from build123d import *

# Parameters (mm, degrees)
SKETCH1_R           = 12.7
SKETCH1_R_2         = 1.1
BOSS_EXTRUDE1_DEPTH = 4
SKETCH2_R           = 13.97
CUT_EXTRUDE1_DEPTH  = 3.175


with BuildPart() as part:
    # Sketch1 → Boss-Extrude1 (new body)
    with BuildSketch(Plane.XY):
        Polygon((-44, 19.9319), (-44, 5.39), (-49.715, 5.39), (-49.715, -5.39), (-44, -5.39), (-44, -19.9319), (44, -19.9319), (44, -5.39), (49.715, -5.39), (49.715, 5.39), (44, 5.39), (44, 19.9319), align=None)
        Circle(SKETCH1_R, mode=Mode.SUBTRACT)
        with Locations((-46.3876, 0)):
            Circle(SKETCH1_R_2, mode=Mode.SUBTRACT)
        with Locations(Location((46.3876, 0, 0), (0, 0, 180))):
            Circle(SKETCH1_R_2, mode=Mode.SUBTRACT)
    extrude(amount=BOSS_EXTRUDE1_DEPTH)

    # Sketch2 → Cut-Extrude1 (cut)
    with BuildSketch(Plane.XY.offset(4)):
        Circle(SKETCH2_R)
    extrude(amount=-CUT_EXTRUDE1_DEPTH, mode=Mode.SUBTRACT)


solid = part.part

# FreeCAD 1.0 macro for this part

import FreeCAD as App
import Part
import Sketcher
Q = App.Units.Quantity


def add_polygon(sketch, points):
    """Adds a closed chain of lines whose ends are joined by coincident constraints."""
    first, n = sketch.GeometryCount, len(points)
    for a, b in zip(points, points[1:] + points[:1]):
        sketch.addGeometry(Part.LineSegment(App.Vector(*a, 0), App.Vector(*b, 0)), False)
    for i in range(n):
        sketch.addConstraint(Sketcher.Constraint("Coincident", first + i, 2, first + (i + 1) % n, 1))

doc = App.newDocument("Part")
body = doc.addObject("PartDesign::Body", "Body")

sketch1 = body.newObject("Sketcher::SketchObject", "Sketch")
sketch1.AttachmentSupport = (doc.getObject("XY_Plane"), [""])
sketch1.MapMode = "FlatFace"
add_polygon(sketch1, [(-44, 19.9), (-44, 5.4), (-49.7, 5.4), (-49.7, -5.4), (-44, -5.4), (-44, -19.9), (44, -19.9), (44, -5.4), (49.7, -5.4), (49.7, 5.4), (44, 5.4), (44, 19.9)])
sketch1.addGeometry(Part.Circle(App.Vector(-46.4, 0, 0), App.Vector(0, 0, 1), 1.1), False)
sketch1.addGeometry(Part.Circle(App.Vector(0, 0, 0), App.Vector(0, 0, 1), 12.7), False)
sketch1.addGeometry(Part.Circle(App.Vector(46.4, 0, 0), App.Vector(0, 0, 1), 1.1), False)
sketch1.addConstraint([
    Sketcher.Constraint("Vertical", 0),
    Sketcher.Constraint("Horizontal", 1),
    Sketcher.Constraint("Vertical", 2),
    Sketcher.Constraint("Horizontal", 3),
    Sketcher.Constraint("Vertical", 4),
    Sketcher.Constraint("Horizontal", 5),
    Sketcher.Constraint("Vertical", 6),
    Sketcher.Constraint("Horizontal", 7),
    Sketcher.Constraint("Vertical", 8),
    Sketcher.Constraint("Horizontal", 9),
    Sketcher.Constraint("Vertical", 10),
    Sketcher.Constraint("Horizontal", 11),
    Sketcher.Constraint("Coincident", 13, 3, -1, 1),
    Sketcher.Constraint("Equal", 12, 14),
    Sketcher.Constraint("Symmetric", 12, 3, 14, 3, -1, 1),
    Sketcher.Constraint("Symmetric", 0, 2, 6, 2, -1, 1),
    Sketcher.Constraint("Symmetric", 2, 2, 8, 2, -1, 1),
    Sketcher.Constraint("Symmetric", 4, 2, 10, 2, -1, 1),
    Sketcher.Constraint("Symmetric", 3, 2, 6, 2, -2),
    Sketcher.Constraint("PointOnObject", 12, 3, -1),
    Sketcher.Constraint("Diameter", 13, Q("1 in")),
    Sketcher.Constraint("Diameter", 12, 2.2),
    Sketcher.Constraint("DistanceX", 1, 2, 1, 1, Q("0.225 in")),
    Sketcher.Constraint("DistanceX", 12, 3, 0, 2, Q("0.094 in")),
    Sketcher.Constraint("DistanceX", 5, 1, 5, 2, 88.0),
    Sketcher.Constraint("DistanceY", 0, 2, 0, 1, 14.5419),
    Sketcher.Constraint("DistanceY", 2, 2, 2, 1, 10.78),
])
pad1 = body.newObject("PartDesign::Pad", "Pad")
pad1.Profile = sketch1
pad1.Length = 4

sketch2 = body.newObject("Sketcher::SketchObject", "Sketch001")
sketch2.AttachmentSupport = (doc.getObject("XY_Plane"), [""])
sketch2.MapMode = "FlatFace"
sketch2.AttachmentOffset = App.Placement(App.Vector(0, 0, 4), App.Rotation())
sketch2.addGeometry(Part.Circle(App.Vector(0, 0, 0), App.Vector(0, 0, 1), 14), False)
sketch2.addConstraint([
    Sketcher.Constraint("Coincident", 0, 3, -1, 1),
    Sketcher.Constraint("Diameter", 0, Q("1.1 in")),
])
pocket1 = body.newObject("PartDesign::Pocket", "Pocket")
pocket1.Profile = sketch2
pocket1.Length = Q("0.125 in")

doc.recompute()
